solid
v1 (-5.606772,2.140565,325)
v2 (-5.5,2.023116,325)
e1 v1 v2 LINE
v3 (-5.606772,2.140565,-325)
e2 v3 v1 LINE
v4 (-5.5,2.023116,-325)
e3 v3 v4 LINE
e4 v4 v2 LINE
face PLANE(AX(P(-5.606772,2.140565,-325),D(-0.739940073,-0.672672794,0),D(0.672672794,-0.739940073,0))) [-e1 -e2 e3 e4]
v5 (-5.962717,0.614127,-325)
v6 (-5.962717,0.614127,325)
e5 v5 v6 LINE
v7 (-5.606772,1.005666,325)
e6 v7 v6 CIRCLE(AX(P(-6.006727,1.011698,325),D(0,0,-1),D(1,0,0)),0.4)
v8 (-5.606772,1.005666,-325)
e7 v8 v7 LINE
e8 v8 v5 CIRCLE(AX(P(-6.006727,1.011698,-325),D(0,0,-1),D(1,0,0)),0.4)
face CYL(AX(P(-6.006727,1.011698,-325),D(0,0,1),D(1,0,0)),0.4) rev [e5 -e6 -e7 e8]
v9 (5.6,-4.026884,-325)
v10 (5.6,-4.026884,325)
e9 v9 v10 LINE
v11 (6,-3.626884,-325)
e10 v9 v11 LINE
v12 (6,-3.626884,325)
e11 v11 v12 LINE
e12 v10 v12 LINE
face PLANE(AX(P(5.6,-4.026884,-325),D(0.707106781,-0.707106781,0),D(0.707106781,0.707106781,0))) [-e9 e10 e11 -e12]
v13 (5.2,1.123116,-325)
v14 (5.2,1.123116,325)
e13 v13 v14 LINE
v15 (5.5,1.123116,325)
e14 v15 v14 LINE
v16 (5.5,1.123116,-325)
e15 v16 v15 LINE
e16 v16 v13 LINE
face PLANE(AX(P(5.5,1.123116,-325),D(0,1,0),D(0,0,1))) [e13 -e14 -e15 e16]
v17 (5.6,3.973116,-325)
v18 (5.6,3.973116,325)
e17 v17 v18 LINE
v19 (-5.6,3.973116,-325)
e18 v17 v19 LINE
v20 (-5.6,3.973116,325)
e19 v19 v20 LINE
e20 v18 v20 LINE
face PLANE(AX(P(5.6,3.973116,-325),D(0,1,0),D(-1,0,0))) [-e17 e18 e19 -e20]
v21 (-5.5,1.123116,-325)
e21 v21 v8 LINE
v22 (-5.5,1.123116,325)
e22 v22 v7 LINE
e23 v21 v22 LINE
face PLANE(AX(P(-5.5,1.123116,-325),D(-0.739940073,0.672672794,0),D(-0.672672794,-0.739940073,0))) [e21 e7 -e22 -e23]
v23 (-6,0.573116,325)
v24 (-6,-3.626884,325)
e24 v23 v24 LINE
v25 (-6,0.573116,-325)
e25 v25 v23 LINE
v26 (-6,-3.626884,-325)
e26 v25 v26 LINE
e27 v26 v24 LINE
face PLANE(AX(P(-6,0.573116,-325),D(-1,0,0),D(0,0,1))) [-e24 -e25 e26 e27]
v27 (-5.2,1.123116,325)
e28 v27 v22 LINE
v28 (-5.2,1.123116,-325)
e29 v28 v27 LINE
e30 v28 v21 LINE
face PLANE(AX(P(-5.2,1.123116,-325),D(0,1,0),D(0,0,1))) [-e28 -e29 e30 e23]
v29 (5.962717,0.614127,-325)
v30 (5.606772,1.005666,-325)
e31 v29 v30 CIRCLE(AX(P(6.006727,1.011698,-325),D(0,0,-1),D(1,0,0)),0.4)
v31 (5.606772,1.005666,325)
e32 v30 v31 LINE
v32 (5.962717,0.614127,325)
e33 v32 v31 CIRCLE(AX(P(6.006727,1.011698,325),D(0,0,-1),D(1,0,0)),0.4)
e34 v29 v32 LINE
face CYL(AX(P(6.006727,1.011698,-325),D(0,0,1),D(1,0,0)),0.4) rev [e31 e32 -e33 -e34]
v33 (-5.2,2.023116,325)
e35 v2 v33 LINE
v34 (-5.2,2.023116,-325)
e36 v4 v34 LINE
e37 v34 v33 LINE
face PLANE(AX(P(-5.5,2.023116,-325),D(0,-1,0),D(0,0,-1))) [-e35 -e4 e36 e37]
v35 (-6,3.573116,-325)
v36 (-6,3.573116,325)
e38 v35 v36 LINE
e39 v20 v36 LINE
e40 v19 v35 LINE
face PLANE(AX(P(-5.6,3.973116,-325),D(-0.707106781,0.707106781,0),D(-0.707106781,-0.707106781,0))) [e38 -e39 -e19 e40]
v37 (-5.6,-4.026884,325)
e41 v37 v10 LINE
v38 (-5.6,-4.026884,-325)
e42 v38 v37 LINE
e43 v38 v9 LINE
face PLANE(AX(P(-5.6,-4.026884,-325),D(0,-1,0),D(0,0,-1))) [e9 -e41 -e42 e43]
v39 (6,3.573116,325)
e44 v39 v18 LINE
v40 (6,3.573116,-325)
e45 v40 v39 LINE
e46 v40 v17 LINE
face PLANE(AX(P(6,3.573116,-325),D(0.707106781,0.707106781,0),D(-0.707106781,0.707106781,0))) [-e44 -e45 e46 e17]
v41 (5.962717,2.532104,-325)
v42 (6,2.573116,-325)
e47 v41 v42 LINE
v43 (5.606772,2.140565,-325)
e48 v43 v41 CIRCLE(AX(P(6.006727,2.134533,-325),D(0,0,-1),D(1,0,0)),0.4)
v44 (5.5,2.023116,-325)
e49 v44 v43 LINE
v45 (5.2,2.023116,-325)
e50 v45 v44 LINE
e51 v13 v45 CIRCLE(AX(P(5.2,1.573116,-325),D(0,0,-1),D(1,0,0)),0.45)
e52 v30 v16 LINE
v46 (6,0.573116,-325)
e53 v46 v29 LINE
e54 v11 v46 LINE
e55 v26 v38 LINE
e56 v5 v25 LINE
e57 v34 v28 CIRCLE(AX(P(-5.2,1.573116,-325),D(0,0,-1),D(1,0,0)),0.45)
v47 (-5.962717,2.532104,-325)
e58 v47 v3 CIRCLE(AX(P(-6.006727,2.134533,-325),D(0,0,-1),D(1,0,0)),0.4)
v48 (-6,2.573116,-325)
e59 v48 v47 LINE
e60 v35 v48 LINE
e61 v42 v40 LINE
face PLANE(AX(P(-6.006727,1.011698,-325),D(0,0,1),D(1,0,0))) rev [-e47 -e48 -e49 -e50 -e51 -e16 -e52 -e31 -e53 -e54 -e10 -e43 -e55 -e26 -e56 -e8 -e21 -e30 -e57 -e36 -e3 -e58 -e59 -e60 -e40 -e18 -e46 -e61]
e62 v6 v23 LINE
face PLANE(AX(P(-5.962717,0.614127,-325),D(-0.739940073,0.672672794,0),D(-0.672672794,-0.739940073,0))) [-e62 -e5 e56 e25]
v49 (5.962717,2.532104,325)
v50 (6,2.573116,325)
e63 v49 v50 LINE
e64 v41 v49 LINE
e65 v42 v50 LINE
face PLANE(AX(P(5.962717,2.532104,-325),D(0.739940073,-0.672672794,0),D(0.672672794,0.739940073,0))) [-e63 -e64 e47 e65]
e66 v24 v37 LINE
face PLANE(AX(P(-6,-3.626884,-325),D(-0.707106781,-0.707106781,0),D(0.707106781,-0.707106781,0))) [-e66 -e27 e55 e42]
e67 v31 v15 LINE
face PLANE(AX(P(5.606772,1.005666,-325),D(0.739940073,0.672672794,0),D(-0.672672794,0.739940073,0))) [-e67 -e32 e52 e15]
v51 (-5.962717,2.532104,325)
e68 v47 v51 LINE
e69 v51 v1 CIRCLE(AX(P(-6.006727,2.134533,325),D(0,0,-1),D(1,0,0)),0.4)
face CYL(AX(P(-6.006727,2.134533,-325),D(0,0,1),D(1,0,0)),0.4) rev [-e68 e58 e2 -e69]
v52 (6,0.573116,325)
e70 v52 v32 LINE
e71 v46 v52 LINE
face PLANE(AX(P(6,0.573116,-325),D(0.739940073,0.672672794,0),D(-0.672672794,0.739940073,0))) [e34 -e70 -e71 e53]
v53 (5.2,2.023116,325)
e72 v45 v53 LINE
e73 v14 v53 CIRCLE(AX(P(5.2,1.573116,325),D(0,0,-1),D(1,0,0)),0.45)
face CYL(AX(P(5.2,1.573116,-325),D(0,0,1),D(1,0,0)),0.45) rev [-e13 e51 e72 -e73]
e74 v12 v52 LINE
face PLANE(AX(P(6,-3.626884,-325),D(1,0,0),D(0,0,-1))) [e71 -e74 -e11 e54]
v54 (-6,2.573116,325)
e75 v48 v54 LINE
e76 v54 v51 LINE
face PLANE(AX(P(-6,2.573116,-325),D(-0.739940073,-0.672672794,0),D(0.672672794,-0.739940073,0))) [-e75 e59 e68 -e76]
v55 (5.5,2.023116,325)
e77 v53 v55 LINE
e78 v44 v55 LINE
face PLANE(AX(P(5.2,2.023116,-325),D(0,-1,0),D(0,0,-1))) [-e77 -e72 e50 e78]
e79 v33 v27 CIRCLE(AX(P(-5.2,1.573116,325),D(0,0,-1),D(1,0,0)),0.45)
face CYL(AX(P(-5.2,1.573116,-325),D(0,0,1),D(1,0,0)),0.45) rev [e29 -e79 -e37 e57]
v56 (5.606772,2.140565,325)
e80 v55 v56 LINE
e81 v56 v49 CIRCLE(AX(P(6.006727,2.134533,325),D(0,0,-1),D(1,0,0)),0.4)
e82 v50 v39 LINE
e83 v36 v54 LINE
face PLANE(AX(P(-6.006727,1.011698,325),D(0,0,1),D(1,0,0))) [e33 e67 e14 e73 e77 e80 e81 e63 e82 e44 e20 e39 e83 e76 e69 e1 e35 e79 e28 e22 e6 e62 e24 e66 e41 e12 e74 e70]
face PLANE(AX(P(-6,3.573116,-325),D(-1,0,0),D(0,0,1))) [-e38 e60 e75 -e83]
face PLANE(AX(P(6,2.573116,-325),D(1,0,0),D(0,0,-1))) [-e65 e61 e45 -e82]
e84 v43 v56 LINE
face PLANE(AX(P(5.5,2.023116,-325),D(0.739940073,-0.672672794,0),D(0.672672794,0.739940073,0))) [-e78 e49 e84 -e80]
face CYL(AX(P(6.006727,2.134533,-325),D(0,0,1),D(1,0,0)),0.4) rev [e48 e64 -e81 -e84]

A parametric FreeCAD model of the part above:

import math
import FreeCAD as App
import Part
import Sketcher
from FreeCAD import Vector

doc = App.newDocument("Part")
body = doc.addObject("PartDesign::Body", "Body")

# Sketch on XY plane
sketch1 = body.newObject("Sketcher::SketchObject", "Sketch")
sketch1.AttachmentSupport = (doc.getObject("XY_Plane"), [""])
sketch1.MapMode = "FlatFace"
sketch1.addGeometry([
    Part.LineSegment(Vector(-6, -3.626884, 0), Vector(-5.6, -4.026884, 0)),  # 0
    Part.LineSegment(Vector(-5.6, -4.026884, 0), Vector(5.6, -4.026884, 0)),  # 1
    Part.LineSegment(Vector(5.6, -4.026884, 0), Vector(6, -3.626884, 0)),  # 2
    Part.LineSegment(Vector(6, -3.626884, 0), Vector(6, 0.573116, 0)),  # 3
    Part.LineSegment(Vector(6, 0.573116, 0), Vector(5.962717, 0.614127, 0)),  # 4
    Part.ArcOfCircle(Part.Circle(Vector(6.006727, 1.011698, 0), Vector(0, 0, 1), 0.4), math.radians(-179.135933), math.radians(-96.316689)),  # 5
    Part.LineSegment(Vector(5.606772, 1.005666, 0), Vector(5.5, 1.123116, 0)),  # 6
    Part.LineSegment(Vector(5.5, 1.123116, 0), Vector(5.2, 1.123116, 0)),  # 7
    Part.ArcOfCircle(Part.Circle(Vector(5.2, 1.573116, 0), Vector(0, 0, 1), 0.45), math.radians(90), math.radians(270)),  # 8
    Part.LineSegment(Vector(5.2, 2.023116, 0), Vector(5.5, 2.023116, 0)),  # 9
    Part.LineSegment(Vector(5.5, 2.023116, 0), Vector(5.606772, 2.140565, 0)),  # 10
    Part.ArcOfCircle(Part.Circle(Vector(6.006727, 2.134533, 0), Vector(0, 0, 1), 0.4), math.radians(96.316689), math.radians(179.135933)),  # 11
    Part.LineSegment(Vector(5.962717, 2.532104, 0), Vector(6, 2.573116, 0)),  # 12
    Part.LineSegment(Vector(6, 2.573116, 0), Vector(6, 3.573116, 0)),  # 13
    Part.LineSegment(Vector(6, 3.573116, 0), Vector(5.6, 3.973116, 0)),  # 14
    Part.LineSegment(Vector(5.6, 3.973116, 0), Vector(-5.6, 3.973116, 0)),  # 15
    Part.LineSegment(Vector(-5.6, 3.973116, 0), Vector(-6, 3.573116, 0)),  # 16
    Part.LineSegment(Vector(-6, 3.573116, 0), Vector(-6, 2.573116, 0)),  # 17
    Part.LineSegment(Vector(-6, 2.573116, 0), Vector(-5.962717, 2.532104, 0)),  # 18
    Part.ArcOfCircle(Part.Circle(Vector(-6.006727, 2.134533, 0), Vector(0, 0, 1), 0.4), math.radians(0.864067), math.radians(83.683311)),  # 19
    Part.LineSegment(Vector(-5.606772, 2.140565, 0), Vector(-5.5, 2.023116, 0)),  # 20
    Part.LineSegment(Vector(-5.5, 2.023116, 0), Vector(-5.2, 2.023116, 0)),  # 21
    Part.ArcOfCircle(Part.Circle(Vector(-5.2, 1.573116, 0), Vector(0, 0, 1), 0.45), math.radians(-90), math.radians(90)),  # 22
    Part.LineSegment(Vector(-5.2, 1.123116, 0), Vector(-5.5, 1.123116, 0)),  # 23
    Part.LineSegment(Vector(-5.5, 1.123116, 0), Vector(-5.606772, 1.005666, 0)),  # 24
    Part.ArcOfCircle(Part.Circle(Vector(-6.006727, 1.011698, 0), Vector(0, 0, 1), 0.4), math.radians(-83.683311), math.radians(-0.864067)),  # 25
    Part.LineSegment(Vector(-5.962717, 0.614127, 0), Vector(-6, 0.573116, 0)),  # 26
    Part.LineSegment(Vector(-6, 0.573116, 0), Vector(-6, -3.626884, 0)),  # 27
], False)
sketch1.addConstraint([
    Sketcher.Constraint("Coincident", 0, 2, 1, 1),
    Sketcher.Constraint("Coincident", 1, 2, 2, 1),
    Sketcher.Constraint("Coincident", 2, 2, 3, 1),
    Sketcher.Constraint("Coincident", 3, 2, 4, 1),
    Sketcher.Constraint("Coincident", 4, 2, 5, 2),
    Sketcher.Constraint("Coincident", 5, 1, 6, 1),
    Sketcher.Constraint("Coincident", 6, 2, 7, 1),
    Sketcher.Constraint("Tangent", 7, 2, 8, 2),
    Sketcher.Constraint("Tangent", 8, 1, 9, 1),
    Sketcher.Constraint("Coincident", 9, 2, 10, 1),
    Sketcher.Constraint("Coincident", 10, 2, 11, 2),
    Sketcher.Constraint("Coincident", 11, 1, 12, 1),
    Sketcher.Constraint("Coincident", 12, 2, 13, 1),
    Sketcher.Constraint("Coincident", 13, 2, 14, 1),
    Sketcher.Constraint("Coincident", 14, 2, 15, 1),
    Sketcher.Constraint("Coincident", 15, 2, 16, 1),
    Sketcher.Constraint("Coincident", 16, 2, 17, 1),
    Sketcher.Constraint("Coincident", 17, 2, 18, 1),
    Sketcher.Constraint("Coincident", 18, 2, 19, 2),
    Sketcher.Constraint("Coincident", 19, 1, 20, 1),
    Sketcher.Constraint("Coincident", 20, 2, 21, 1),
    Sketcher.Constraint("Tangent", 21, 2, 22, 2),
    Sketcher.Constraint("Tangent", 22, 1, 23, 1),
    Sketcher.Constraint("Coincident", 23, 2, 24, 1),
    Sketcher.Constraint("Coincident", 24, 2, 25, 2),
    Sketcher.Constraint("Coincident", 25, 1, 26, 1),
    Sketcher.Constraint("Coincident", 26, 2, 27, 1),
    Sketcher.Constraint("Coincident", 27, 2, 0, 1),
    Sketcher.Constraint("Horizontal", 1),
    Sketcher.Constraint("Vertical", 3),
    Sketcher.Constraint("Horizontal", 7),
    Sketcher.Constraint("Horizontal", 9),
    Sketcher.Constraint("Vertical", 13),
    Sketcher.Constraint("Horizontal", 15),
    Sketcher.Constraint("Vertical", 17),
    Sketcher.Constraint("Horizontal", 21),
    Sketcher.Constraint("Horizontal", 23),
    Sketcher.Constraint("Vertical", 27),
    Sketcher.Constraint("Equal", 5, 11),
    Sketcher.Constraint("Equal", 11, 19),
    Sketcher.Constraint("Equal", 8, 22),
    Sketcher.Constraint("Equal", 19, 25),
    Sketcher.Constraint("Symmetric", 11, 3, 19, 3, -2),
    Sketcher.Constraint("Symmetric", 8, 3, 22, 3, -2),
    Sketcher.Constraint("Symmetric", 5, 3, 25, 3, -2),
    Sketcher.Constraint("Symmetric", 13, 2, 16, 2, -2),
    Sketcher.Constraint("Symmetric", 3, 2, 26, 2, -2),
    Sketcher.Constraint("Perpendicular", 0, 2),
    Sketcher.Constraint("Parallel", 4, 6),
    Sketcher.Constraint("Parallel", 10, 12),
    Sketcher.Constraint("Perpendicular", 2, 14),
    Sketcher.Constraint("Perpendicular", 14, 16),
    Sketcher.Constraint("Parallel", 6, 18),
    Sketcher.Constraint("Parallel", 18, 20),
    Sketcher.Constraint("Parallel", 12, 24),
    Sketcher.Constraint("Parallel", 24, 26),
    Sketcher.Constraint("Horizontal", 12, 2, 17, 2),
    Sketcher.Constraint("Horizontal", 11, 1, 18, 2),
    Sketcher.Constraint("Horizontal", 10, 2, 19, 1),
    Sketcher.Constraint("Horizontal", 5, 1, 24, 2),
    Sketcher.Constraint("Horizontal", 2, 2, 27, 2),
    Sketcher.Constraint("Vertical", 5, 3, 11, 3),
    Sketcher.Constraint("Vertical", 6, 2, 9, 2),
    Sketcher.Constraint("Vertical", 5, 1, 10, 2),
    Sketcher.Constraint("Vertical", 4, 2, 11, 1),
    Sketcher.Constraint("Vertical", 3, 2, 12, 2),
    Sketcher.Constraint("Vertical", 1, 2, 14, 2),
    Sketcher.Constraint("Vertical", 0, 2, 15, 2),
    Sketcher.Constraint("Radius", 5, 0.4),
    Sketcher.Constraint("DistanceY", 13, 1, 13, 2, 1.0),
    Sketcher.Constraint("Radius", 8, 0.45),
    Sketcher.Constraint("DistanceX", 1, 1, 1, 2, 11.2),
    Sketcher.Constraint("DistanceX", 7, 2, 7, 1, 0.3),
    Sketcher.Constraint("DistanceY", 3, 1, 3, 2, 4.2),
    Sketcher.Constraint("DistanceX", -1, 1, 2, 2, 6.0),
    Sketcher.Constraint("DistanceY", 3, 2, 8, 3, 1.0),
    Sketcher.Constraint("DistanceX", -1, 1, 8, 3, 5.2),
    Sketcher.Constraint("DistanceY", -1, 1, 5, 3, 1.011698),
    Sketcher.Constraint("Distance", 6, 0.158728),
    Sketcher.Constraint("DistanceY", 3, 2, 4, 2, 0.041011),
    Sketcher.Constraint("DistanceX", 4, 2, 5, 3, 0.04401),
])
pad1 = body.newObject("PartDesign::Pad", "Pad")
pad1.Profile = sketch1
pad1.Length = 650
pad1.Midplane = True

doc.recompute()
